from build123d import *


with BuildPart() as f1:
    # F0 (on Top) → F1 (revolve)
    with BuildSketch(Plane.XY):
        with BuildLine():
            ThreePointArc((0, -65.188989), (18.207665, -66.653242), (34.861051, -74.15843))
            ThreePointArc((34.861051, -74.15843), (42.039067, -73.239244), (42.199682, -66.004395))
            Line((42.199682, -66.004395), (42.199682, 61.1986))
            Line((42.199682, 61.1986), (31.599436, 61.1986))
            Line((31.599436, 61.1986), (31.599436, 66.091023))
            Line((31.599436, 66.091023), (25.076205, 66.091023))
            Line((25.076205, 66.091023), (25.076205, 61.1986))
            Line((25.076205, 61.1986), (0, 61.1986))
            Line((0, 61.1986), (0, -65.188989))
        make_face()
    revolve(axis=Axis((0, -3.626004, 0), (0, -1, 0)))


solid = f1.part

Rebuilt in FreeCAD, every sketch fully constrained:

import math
import FreeCAD as App
import Part
import Sketcher
Q = App.Units.Quantity

doc = App.newDocument("Part")
body = doc.addObject("PartDesign::Body", "Body")

# Sketch on XY plane
sketch1 = body.newObject("Sketcher::SketchObject", "Sketch")
sketch1.AttachmentSupport = (doc.getObject("XY_Plane"), [""])
sketch1.MapMode = "FlatFace"
sketch1.addGeometry(Part.ArcOfCircle(Part.Circle(App.Vector(4.9, -118.5, 0), App.Vector(0, 0, 1), 53.5), math.radians(56), math.radians(95)), False)
sketch1.addGeometry(Part.ArcOfCircle(Part.Circle(App.Vector(37.9, -69.5, 0), App.Vector(0, 0, 1), 5.5), math.radians(-123), math.radians(39)), False)
sketch1.addGeometry(Part.LineSegment(App.Vector(42.2, -66, 0), App.Vector(42.2, 61.2, 0)), False)
sketch1.addGeometry(Part.LineSegment(App.Vector(42.2, 61.2, 0), App.Vector(31.6, 61.2, 0)), False)
sketch1.addGeometry(Part.LineSegment(App.Vector(31.6, 61.2, 0), App.Vector(31.6, 66.1, 0)), False)
sketch1.addGeometry(Part.LineSegment(App.Vector(31.6, 66.1, 0), App.Vector(25.1, 66.1, 0)), False)
sketch1.addGeometry(Part.LineSegment(App.Vector(25.1, 66.1, 0), App.Vector(25.1, 61.2, 0)), False)
sketch1.addGeometry(Part.LineSegment(App.Vector(25.1, 61.2, 0), App.Vector(0, 61.2, 0)), False)
sketch1.addGeometry(Part.LineSegment(App.Vector(0, 61.2, 0), App.Vector(0, -65.2, 0)), False)
sketch1.addConstraint(Sketcher.Constraint("Coincident", 0, 1, 1, 1))
sketch1.addConstraint(Sketcher.Constraint("Coincident", 1, 2, 2, 1))
sketch1.addConstraint(Sketcher.Constraint("Coincident", 2, 2, 3, 1))
sketch1.addConstraint(Sketcher.Constraint("Coincident", 3, 2, 4, 1))
sketch1.addConstraint(Sketcher.Constraint("Coincident", 4, 2, 5, 1))
sketch1.addConstraint(Sketcher.Constraint("Coincident", 5, 2, 6, 1))
sketch1.addConstraint(Sketcher.Constraint("Coincident", 6, 2, 7, 1))
sketch1.addConstraint(Sketcher.Constraint("Coincident", 7, 2, 8, 1))
sketch1.addConstraint(Sketcher.Constraint("Coincident", 8, 2, 0, 2))
sketch1.addConstraint(Sketcher.Constraint("Vertical", 2))
sketch1.addConstraint(Sketcher.Constraint("Horizontal", 3))
sketch1.addConstraint(Sketcher.Constraint("Vertical", 4))
sketch1.addConstraint(Sketcher.Constraint("Horizontal", 5))
sketch1.addConstraint(Sketcher.Constraint("Vertical", 6))
sketch1.addConstraint(Sketcher.Constraint("Horizontal", 7))
sketch1.addConstraint(Sketcher.Constraint("Vertical", 8))
sketch1.addConstraint(Sketcher.Constraint("PointOnObject", 7, 2, -2))
sketch1.addConstraint(Sketcher.Constraint("Horizontal", 3, 2, 6, 2))
sketch1.addConstraint(Sketcher.Constraint("Radius", 0, Q("53.491521 mm")))
sketch1.addConstraint(Sketcher.Constraint("Radius", 1, Q("5.546988 mm")))
sketch1.addConstraint(Sketcher.Constraint("DistanceX", 5, 2, 5, 1, Q("6.523231 mm")))
sketch1.addConstraint(Sketcher.Constraint("DistanceY", 8, 2, 8, 1, Q("126.387589 mm")))
sketch1.addConstraint(Sketcher.Constraint("DistanceY", -1, 1, 2, 2, Q("61.1986 mm")))
sketch1.addConstraint(Sketcher.Constraint("DistanceX", 3, 2, 3, 1, Q("10.600246 mm")))
sketch1.addConstraint(Sketcher.Constraint("DistanceX", 7, 2, 7, 1, Q("25.076205 mm")))
sketch1.addConstraint(Sketcher.Constraint("DistanceY", 2, 1, 2, 2, Q("127.202995 mm")))
sketch1.addConstraint(Sketcher.Constraint("DistanceY", 4, 1, 4, 2, Q("4.892423 mm")))
sketch1.addConstraint(Sketcher.Constraint("DistanceY", 0, 3, -1, 1, Q("118.457548 mm")))
sketch1.addConstraint(Sketcher.Constraint("DistanceX", -1, 1, 0, 1, Q("34.861051 mm")))
revolution = body.newObject("PartDesign::Revolution", "Revolution")
revolution.Profile = sketch1
revolution.ReferenceAxis = (sketch1, ["V_Axis"])
revolution.Angle = 360

doc.recompute()
